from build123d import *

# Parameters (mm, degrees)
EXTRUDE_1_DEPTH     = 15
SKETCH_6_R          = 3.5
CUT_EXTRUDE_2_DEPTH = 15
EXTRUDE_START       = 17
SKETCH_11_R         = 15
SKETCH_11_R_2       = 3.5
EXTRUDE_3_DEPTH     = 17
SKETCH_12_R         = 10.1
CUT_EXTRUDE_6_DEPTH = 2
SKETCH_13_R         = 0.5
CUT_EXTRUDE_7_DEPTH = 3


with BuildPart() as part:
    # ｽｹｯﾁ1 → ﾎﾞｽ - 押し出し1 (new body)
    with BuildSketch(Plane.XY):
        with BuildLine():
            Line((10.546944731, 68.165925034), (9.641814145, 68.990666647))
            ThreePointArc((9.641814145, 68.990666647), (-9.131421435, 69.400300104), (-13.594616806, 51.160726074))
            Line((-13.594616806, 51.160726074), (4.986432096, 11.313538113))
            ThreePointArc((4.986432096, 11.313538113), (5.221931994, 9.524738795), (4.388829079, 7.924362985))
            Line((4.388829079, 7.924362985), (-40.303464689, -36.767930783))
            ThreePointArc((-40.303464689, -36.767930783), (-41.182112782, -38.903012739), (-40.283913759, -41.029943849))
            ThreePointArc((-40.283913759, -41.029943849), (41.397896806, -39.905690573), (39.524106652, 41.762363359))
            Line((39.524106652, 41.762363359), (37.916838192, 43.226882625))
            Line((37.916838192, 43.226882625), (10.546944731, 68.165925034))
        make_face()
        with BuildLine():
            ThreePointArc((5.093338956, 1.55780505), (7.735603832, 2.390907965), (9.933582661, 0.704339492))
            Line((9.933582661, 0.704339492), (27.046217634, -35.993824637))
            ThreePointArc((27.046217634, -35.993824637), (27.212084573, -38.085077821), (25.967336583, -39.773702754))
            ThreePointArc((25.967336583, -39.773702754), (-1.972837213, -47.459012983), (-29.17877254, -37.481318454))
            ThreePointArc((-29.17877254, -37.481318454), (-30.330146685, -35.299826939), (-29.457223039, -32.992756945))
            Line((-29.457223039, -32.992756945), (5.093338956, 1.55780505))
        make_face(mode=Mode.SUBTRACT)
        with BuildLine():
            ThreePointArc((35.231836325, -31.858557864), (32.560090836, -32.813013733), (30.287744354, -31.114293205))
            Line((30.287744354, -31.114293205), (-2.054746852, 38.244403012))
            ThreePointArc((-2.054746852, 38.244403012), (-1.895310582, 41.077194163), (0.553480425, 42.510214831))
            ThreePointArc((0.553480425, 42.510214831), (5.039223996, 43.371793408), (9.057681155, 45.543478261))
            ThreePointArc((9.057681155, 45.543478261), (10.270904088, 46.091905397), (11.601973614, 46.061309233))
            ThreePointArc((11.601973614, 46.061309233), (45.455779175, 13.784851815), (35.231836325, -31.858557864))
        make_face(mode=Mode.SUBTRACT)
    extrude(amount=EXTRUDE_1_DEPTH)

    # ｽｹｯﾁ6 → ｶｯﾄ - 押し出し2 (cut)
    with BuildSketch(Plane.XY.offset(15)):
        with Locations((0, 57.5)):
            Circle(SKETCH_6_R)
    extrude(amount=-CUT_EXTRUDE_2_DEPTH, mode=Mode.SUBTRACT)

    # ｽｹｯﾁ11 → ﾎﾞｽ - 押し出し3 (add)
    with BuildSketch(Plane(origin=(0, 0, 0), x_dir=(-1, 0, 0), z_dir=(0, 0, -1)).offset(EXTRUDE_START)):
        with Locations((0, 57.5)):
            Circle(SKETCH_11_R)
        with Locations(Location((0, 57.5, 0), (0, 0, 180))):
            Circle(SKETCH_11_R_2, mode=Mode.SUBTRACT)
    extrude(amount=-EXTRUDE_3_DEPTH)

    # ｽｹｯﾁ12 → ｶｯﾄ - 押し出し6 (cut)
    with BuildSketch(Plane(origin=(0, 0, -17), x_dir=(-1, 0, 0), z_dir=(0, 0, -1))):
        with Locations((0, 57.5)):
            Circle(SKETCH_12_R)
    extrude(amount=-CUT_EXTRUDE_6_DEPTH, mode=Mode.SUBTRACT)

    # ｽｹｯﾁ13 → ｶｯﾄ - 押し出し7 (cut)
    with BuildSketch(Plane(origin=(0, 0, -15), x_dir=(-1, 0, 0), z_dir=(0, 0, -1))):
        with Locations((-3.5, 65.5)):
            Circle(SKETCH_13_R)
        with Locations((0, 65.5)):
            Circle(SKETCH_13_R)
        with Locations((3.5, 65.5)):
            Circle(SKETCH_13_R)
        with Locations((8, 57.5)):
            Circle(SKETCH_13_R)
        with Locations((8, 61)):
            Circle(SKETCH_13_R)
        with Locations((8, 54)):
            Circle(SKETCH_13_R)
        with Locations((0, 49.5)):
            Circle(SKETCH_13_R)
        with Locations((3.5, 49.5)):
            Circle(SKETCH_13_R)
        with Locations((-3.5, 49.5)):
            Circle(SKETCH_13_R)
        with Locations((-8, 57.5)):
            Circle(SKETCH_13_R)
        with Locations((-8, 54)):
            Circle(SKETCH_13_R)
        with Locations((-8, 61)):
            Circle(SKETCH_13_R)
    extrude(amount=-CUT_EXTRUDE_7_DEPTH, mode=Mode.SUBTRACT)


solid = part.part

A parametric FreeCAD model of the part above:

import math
import FreeCAD as App
import Part
import Sketcher
Q = App.Units.Quantity

doc = App.newDocument("Part")
body = doc.addObject("PartDesign::Body", "Body")

sketch1 = body.newObject("Sketcher::SketchObject", "Sketch")
sketch1.AttachmentSupport = (doc.getObject("XY_Plane"), [""])
sketch1.MapMode = "FlatFace"
sketch1.addGeometry(Part.LineSegment(App.Vector(10.546945, 68.165925, 0), App.Vector(9.641814, 68.990667, 0)), False)
sketch1.addGeometry(Part.ArcOfCircle(Part.Circle(App.Vector(0, 57.5, 0), App.Vector(0, 0, 1), 15), math.radians(50), math.radians(205)), False)
sketch1.addGeometry(Part.LineSegment(App.Vector(-13.594617, 51.160726, 0), App.Vector(4.986432, 11.313538, 0)), False)
sketch1.addGeometry(Part.ArcOfCircle(Part.Circle(App.Vector(2.267509, 10.045683, 0), App.Vector(0, 0, 1), 3), math.radians(-45), math.radians(25)), False)
sketch1.addGeometry(Part.LineSegment(App.Vector(4.388829, 7.924363, 0), App.Vector(-40.303465, -36.767931, 0)), False)
sketch1.addGeometry(Part.ArcOfCircle(Part.Circle(App.Vector(-38.182144, -38.889251, 0), App.Vector(0, 0, 1), 3), math.radians(135), math.radians(225.525657)), False)
sketch1.addGeometry(Part.ArcOfCircle(Part.Circle(App.Vector(0, 0, 0), App.Vector(0, 0, 1), 57.5), math.radians(-134.474343), math.radians(46.577265)), False)
sketch1.addGeometry(Part.LineSegment(App.Vector(39.524107, 41.762363, 0), App.Vector(37.916838, 43.226883, 0)), False)
sketch1.addGeometry(Part.LineSegment(App.Vector(37.916838, 43.226883, 0), App.Vector(10.546945, 68.165925, 0)), False)
sketch1.addGeometry(Part.LineSegment(App.Vector(-29.457223, -32.992757, 0), App.Vector(5.093339, 1.557805, 0)), False)
sketch1.addGeometry(Part.ArcOfCircle(Part.Circle(App.Vector(7.214659, -0.563515, 0), App.Vector(0, 0, 1), 3), math.radians(25), math.radians(135)), False)
sketch1.addGeometry(Part.LineSegment(App.Vector(9.933583, 0.704339, 0), App.Vector(27.046218, -35.993825, 0)), False)
sketch1.addGeometry(Part.ArcOfCircle(Part.Circle(App.Vector(24.327294, -37.261679, 0), App.Vector(0, 0, 1), 3), math.radians(-56.860403), math.radians(25)), False)
sketch1.addGeometry(Part.ArcOfCircle(Part.Circle(App.Vector(0, 0, 0), App.Vector(0, 0, 1), 47.5), math.radians(-127.900345), math.radians(-56.860403)), False)
sketch1.addGeometry(Part.ArcOfCircle(Part.Circle(App.Vector(-27.335903, -35.114077, 0), App.Vector(0, 0, 1), 3), math.radians(135), math.radians(232.099655)), False)
sketch1.addGeometry(Part.ArcOfCircle(Part.Circle(App.Vector(0, 0, 0), App.Vector(0, 0, 1), 47.5), math.radians(-42.121615), math.radians(75.862362)), False)
sketch1.addGeometry(Part.ArcOfCircle(Part.Circle(App.Vector(33.006668, -29.846438, 0), App.Vector(0, 0, 1), 3), math.radians(-155), math.radians(-42.121615)), False)
sketch1.addGeometry(Part.LineSegment(App.Vector(30.287744, -31.114293, 0), App.Vector(-2.054747, 38.244403, 0)), False)
sketch1.addGeometry(Part.ArcOfCircle(Part.Circle(App.Vector(0.664177, 39.512258, 0), App.Vector(0, 0, 1), 3), math.radians(92.11462), math.radians(205)), False)
sketch1.addGeometry(Part.ArcOfCircle(Part.Circle(App.Vector(0, 57.5, 0), App.Vector(0, 0, 1), 15), math.radians(-87.88538), math.radians(-52.854196)), False)
sketch1.addGeometry(Part.ArcOfCircle(Part.Circle(App.Vector(10.869217, 43.152174, 0), App.Vector(0, 0, 1), 3), math.radians(75.862362), math.radians(127.145804)), False)
sketch1.addConstraint(Sketcher.Constraint("Coincident", 0, 2, 1, 1))
sketch1.addConstraint(Sketcher.Constraint("Coincident", 1, 2, 2, 1))
sketch1.addConstraint(Sketcher.Constraint("Coincident", 2, 2, 3, 2))
sketch1.addConstraint(Sketcher.Constraint("Coincident", 3, 1, 4, 1))
sketch1.addConstraint(Sketcher.Constraint("Coincident", 4, 2, 5, 1))
sketch1.addConstraint(Sketcher.Constraint("Coincident", 5, 2, 6, 1))
sketch1.addConstraint(Sketcher.Constraint("Coincident", 6, 2, 7, 1))
sketch1.addConstraint(Sketcher.Constraint("Coincident", 7, 2, 8, 1))
sketch1.addConstraint(Sketcher.Constraint("Coincident", 8, 2, 0, 1))
sketch1.addConstraint(Sketcher.Constraint("Coincident", 9, 2, 10, 2))
sketch1.addConstraint(Sketcher.Constraint("Coincident", 10, 1, 11, 1))
sketch1.addConstraint(Sketcher.Constraint("Coincident", 11, 2, 12, 2))
sketch1.addConstraint(Sketcher.Constraint("Coincident", 12, 1, 13, 2))
sketch1.addConstraint(Sketcher.Constraint("Coincident", 13, 1, 14, 2))
sketch1.addConstraint(Sketcher.Constraint("Coincident", 14, 1, 9, 1))
sketch1.addConstraint(Sketcher.Constraint("Coincident", 15, 1, 16, 2))
sketch1.addConstraint(Sketcher.Constraint("Coincident", 16, 1, 17, 1))
sketch1.addConstraint(Sketcher.Constraint("Coincident", 17, 2, 18, 2))
sketch1.addConstraint(Sketcher.Constraint("Coincident", 18, 1, 19, 1))
sketch1.addConstraint(Sketcher.Constraint("Coincident", 19, 2, 20, 2))
sketch1.addConstraint(Sketcher.Constraint("Coincident", 20, 1, 15, 2))
sketch1.addConstraint(Sketcher.Constraint("Coincident", 6, 3, -1, 1))
sketch1.addConstraint(Sketcher.Constraint("Coincident", 13, 3, -1, 1))
sketch1.addConstraint(Sketcher.Constraint("Coincident", 15, 3, -1, 1))
sketch1.addConstraint(Sketcher.Constraint("Coincident", 19, 3, 1, 3))
sketch1.addConstraint(Sketcher.Constraint("PointOnObject", 1, 3, -2))
sketch1.addConstraint(Sketcher.Constraint("Radius", 1, Q("15 mm")))
sketch1.addConstraint(Sketcher.Constraint("Radius", 3, Q("3 mm")))
sketch1.addConstraint(Sketcher.Constraint("Radius", 5, Q("3 mm")))
sketch1.addConstraint(Sketcher.Constraint("Radius", 10, Q("3 mm")))
sketch1.addConstraint(Sketcher.Constraint("Radius", 12, Q("3 mm")))
sketch1.addConstraint(Sketcher.Constraint("Radius", 14, Q("3 mm")))
sketch1.addConstraint(Sketcher.Constraint("Radius", 16, Q("3 mm")))
sketch1.addConstraint(Sketcher.Constraint("Radius", 18, Q("3 mm")))
sketch1.addConstraint(Sketcher.Constraint("Radius", 19, Q("15 mm")))
sketch1.addConstraint(Sketcher.Constraint("Radius", 20, Q("3 mm")))
sketch1.addConstraint(Sketcher.Constraint("Radius", 6, Q("57.5 mm")))
sketch1.addConstraint(Sketcher.Constraint("Radius", 13, Q("47.5 mm")))
sketch1.addConstraint(Sketcher.Constraint("Radius", 15, Q("47.5 mm")))
sketch1.addConstraint(Sketcher.Constraint("DistanceY", -1, 1, 1, 3, Q("57.5 mm")))
sketch1.addConstraint(Sketcher.Constraint("DistanceY", 10, 3, 3, 3, Q("10.609199 mm")))
sketch1.addConstraint(Sketcher.Constraint("DistanceY", 1, 2, 8, 2, Q("17.005199 mm")))
sketch1.addConstraint(Sketcher.Constraint("DistanceX", 12, 1, 15, 1, Q("9.2645 mm")))
sketch1.addConstraint(Sketcher.Constraint("DistanceX", 18, 1, 19, 2, Q("8.504201 mm")))
sketch1.addConstraint(Sketcher.Constraint("Distance", 8, Q("37.027921 mm")))
sketch1.addConstraint(Sketcher.Constraint("DistanceX", -1, 1, 3, 3, Q("2.267509 mm")))
sketch1.addConstraint(Sketcher.Constraint("DistanceY", 5, 3, -1, 1, Q("38.889251 mm")))
sketch1.addConstraint(Sketcher.Constraint("DistanceX", -1, 1, 10, 3, Q("7.214659 mm")))
sketch1.addConstraint(Sketcher.Constraint("DistanceY", 12, 3, -1, 1, Q("37.261679 mm")))
sketch1.addConstraint(Sketcher.Constraint("DistanceY", 16, 3, -1, 1, Q("29.846438 mm")))
sketch1.addConstraint(Sketcher.Constraint("DistanceY", -1, 1, 2, 2, Q("11.313538 mm")))
sketch1.addConstraint(Sketcher.Constraint("DistanceX", -1, 1, 3, 1, Q("4.388829 mm")))
sketch1.addConstraint(Sketcher.Constraint("DistanceY", 4, 2, -1, 1, Q("36.767931 mm")))
sketch1.addConstraint(Sketcher.Constraint("DistanceX", -1, 1, 7, 2, Q("37.916838 mm")))
sketch1.addConstraint(Sketcher.Constraint("DistanceX", -1, 1, 9, 2, Q("5.093339 mm")))
sketch1.addConstraint(Sketcher.Constraint("DistanceY", -1, 1, 10, 1, Q("0.704339 mm")))
sketch1.addConstraint(Sketcher.Constraint("DistanceY", 13, 1, -1, 1, Q("37.481318 mm")))
sketch1.addConstraint(Sketcher.Constraint("DistanceX", -1, 1, 18, 1, Q("0.55348 mm")))
sketch1.addConstraint(Sketcher.Constraint("DistanceY", -1, 1, 20, 1, Q("46.061309 mm")))
sketch1.addConstraint(Sketcher.Constraint("DistanceX", 5, 3, 14, 3, Q("10.846242 mm")))
sketch1.addConstraint(Sketcher.Constraint("DistanceY", 14, 3, 10, 3, Q("34.550562 mm")))
sketch1.addConstraint(Sketcher.Constraint("DistanceX", 18, 3, 20, 3, Q("10.205041 mm")))
sketch1.addConstraint(Sketcher.Constraint("DistanceY", 18, 3, 0, 2, Q("29.478409 mm")))
sketch1.addConstraint(Sketcher.Constraint("DistanceY", 18, 3, 1, 2, Q("11.648468 mm")))
sketch1.addConstraint(Sketcher.Constraint("DistanceX", 5, 2, 5, 3, Q("2.101769 mm")))
sketch1.addConstraint(Sketcher.Constraint("DistanceX", 20, 3, 6, 2, Q("28.654889 mm")))
sketch1.addConstraint(Sketcher.Constraint("DistanceY", 6, 2, 7, 2, Q("1.464519 mm")))
sketch1.addConstraint(Sketcher.Constraint("DistanceX", 11, 2, 16, 3, Q("5.96045 mm")))
sketch1.addConstraint(Sketcher.Constraint("DistanceX", 12, 1, 11, 2, Q("1.078881 mm")))
sketch1.addConstraint(Sketcher.Constraint("DistanceX", 14, 1, 14, 3, Q("2.12132 mm")))
sketch1.addConstraint(Sketcher.Constraint("DistanceX", 16, 1, 15, 1, Q("4.944092 mm")))
sketch1.addConstraint(Sketcher.Constraint("DistanceY", 17, 2, 20, 3, Q("4.907771 mm")))
pad1 = body.newObject("PartDesign::Pad", "Pad")
pad1.Profile = sketch1
pad1.Length = 15

sketch2 = body.newObject("Sketcher::SketchObject", "Sketch001")
sketch2.AttachmentSupport = (doc.getObject("XY_Plane"), [""])
sketch2.MapMode = "FlatFace"
sketch2.AttachmentOffset = App.Placement(App.Vector(0, 0, 15), App.Rotation())
sketch2.addGeometry(Part.Circle(App.Vector(0, 57.5, 0), App.Vector(0, 0, 1), 3.5), False)
sketch2.addConstraint(Sketcher.Constraint("PointOnObject", 0, 3, -2))
sketch2.addConstraint(Sketcher.Constraint("Diameter", 0, Q("7 mm")))
sketch2.addConstraint(Sketcher.Constraint("DistanceY", -1, 1, 0, 3, Q("57.5 mm")))
pocket1 = body.newObject("PartDesign::Pocket", "Pocket")
pocket1.Profile = sketch2
pocket1.Length = 15

sketch3 = body.newObject("Sketcher::SketchObject", "Sketch002")
sketch3.AttachmentSupport = (doc.getObject("XY_Plane"), [""])
sketch3.MapMode = "FlatFace"
sketch3.AttachmentOffset = App.Placement(App.Vector(0, 0, -17), App.Rotation())
sketch3.addGeometry(Part.Circle(App.Vector(0, 57.5, 0), App.Vector(0, 0, 1), 15), False)
sketch3.addGeometry(Part.Circle(App.Vector(0, 57.5, 0), App.Vector(0, 0, 1), 3.5), False)
sketch3.addConstraint(Sketcher.Constraint("Coincident", 1, 3, 0, 3))
sketch3.addConstraint(Sketcher.Constraint("PointOnObject", 0, 3, -2))
sketch3.addConstraint(Sketcher.Constraint("Diameter", 0, Q("30 mm")))
sketch3.addConstraint(Sketcher.Constraint("Diameter", 1, Q("7 mm")))
sketch3.addConstraint(Sketcher.Constraint("DistanceY", -1, 1, 0, 3, Q("57.5 mm")))
pad2 = body.newObject("PartDesign::Pad", "Pad001")
pad2.Profile = sketch3
pad2.Length = 17

sketch4 = body.newObject("Sketcher::SketchObject", "Sketch003")
sketch4.AttachmentSupport = (doc.getObject("XY_Plane"), [""])
sketch4.MapMode = "FlatFace"
sketch4.AttachmentOffset = App.Placement(App.Vector(0, 0, -17), App.Rotation())
sketch4.addGeometry(Part.Circle(App.Vector(0, 57.5, 0), App.Vector(0, 0, 1), 10.1), False)
sketch4.addConstraint(Sketcher.Constraint("PointOnObject", 0, 3, -2))
sketch4.addConstraint(Sketcher.Constraint("Diameter", 0, Q("20.2 mm")))
sketch4.addConstraint(Sketcher.Constraint("DistanceY", -1, 1, 0, 3, Q("57.5 mm")))
pocket2 = body.newObject("PartDesign::Pocket", "Pocket001")
pocket2.Profile = sketch4
pocket2.Length = 2
pocket2.Reversed = True

sketch5 = body.newObject("Sketcher::SketchObject", "Sketch004")
sketch5.AttachmentSupport = (doc.getObject("XY_Plane"), [""])
sketch5.MapMode = "FlatFace"
sketch5.AttachmentOffset = App.Placement(App.Vector(0, 0, -15), App.Rotation())
sketch5.addGeometry(Part.Circle(App.Vector(3.5, 65.5, 0), App.Vector(0, 0, 1), 0.5), False)
sketch5.addGeometry(Part.Circle(App.Vector(0, 65.5, 0), App.Vector(0, 0, 1), 0.5), False)
sketch5.addGeometry(Part.Circle(App.Vector(-3.5, 65.5, 0), App.Vector(0, 0, 1), 0.5), False)
sketch5.addGeometry(Part.Circle(App.Vector(-8, 57.5, 0), App.Vector(0, 0, 1), 0.5), False)
sketch5.addGeometry(Part.Circle(App.Vector(-8, 61, 0), App.Vector(0, 0, 1), 0.5), False)
sketch5.addGeometry(Part.Circle(App.Vector(-8, 54, 0), App.Vector(0, 0, 1), 0.5), False)
sketch5.addGeometry(Part.Circle(App.Vector(0, 49.5, 0), App.Vector(0, 0, 1), 0.5), False)
sketch5.addGeometry(Part.Circle(App.Vector(-3.5, 49.5, 0), App.Vector(0, 0, 1), 0.5), False)
sketch5.addGeometry(Part.Circle(App.Vector(3.5, 49.5, 0), App.Vector(0, 0, 1), 0.5), False)
sketch5.addGeometry(Part.Circle(App.Vector(8, 57.5, 0), App.Vector(0, 0, 1), 0.5), False)
sketch5.addGeometry(Part.Circle(App.Vector(8, 54, 0), App.Vector(0, 0, 1), 0.5), False)
sketch5.addGeometry(Part.Circle(App.Vector(8, 61, 0), App.Vector(0, 0, 1), 0.5), False)
sketch5.addConstraint(Sketcher.Constraint("Equal", 0, 1))
sketch5.addConstraint(Sketcher.Constraint("Equal", 1, 2))
sketch5.addConstraint(Sketcher.Constraint("Equal", 2, 3))
sketch5.addConstraint(Sketcher.Constraint("Equal", 3, 4))
sketch5.addConstraint(Sketcher.Constraint("Equal", 4, 5))
sketch5.addConstraint(Sketcher.Constraint("Equal", 5, 6))
sketch5.addConstraint(Sketcher.Constraint("Equal", 6, 7))
sketch5.addConstraint(Sketcher.Constraint("Equal", 7, 8))
sketch5.addConstraint(Sketcher.Constraint("Equal", 8, 9))
sketch5.addConstraint(Sketcher.Constraint("Equal", 9, 10))
sketch5.addConstraint(Sketcher.Constraint("Equal", 10, 11))
sketch5.addConstraint(Sketcher.Constraint("Symmetric", 0, 3, 2, 3, -2))
sketch5.addConstraint(Sketcher.Constraint("Symmetric", 7, 3, 8, 3, -2))
sketch5.addConstraint(Sketcher.Constraint("Symmetric", 3, 3, 9, 3, -2))
sketch5.addConstraint(Sketcher.Constraint("Symmetric", 5, 3, 10, 3, -2))
sketch5.addConstraint(Sketcher.Constraint("Symmetric", 4, 3, 11, 3, -2))
sketch5.addConstraint(Sketcher.Constraint("PointOnObject", 1, 3, -2))
sketch5.addConstraint(Sketcher.Constraint("PointOnObject", 6, 3, -2))
sketch5.addConstraint(Sketcher.Constraint("Horizontal", 0, 3, 1, 3))
sketch5.addConstraint(Sketcher.Constraint("Horizontal", 6, 3, 7, 3))
sketch5.addConstraint(Sketcher.Constraint("Vertical", 3, 3, 4, 3))
sketch5.addConstraint(Sketcher.Constraint("Vertical", 4, 3, 5, 3))
sketch5.addConstraint(Sketcher.Constraint("Vertical", 2, 3, 7, 3))
sketch5.addConstraint(Sketcher.Constraint("Diameter", 0, Q("1 mm")))
sketch5.addConstraint(Sketcher.Constraint("DistanceX", 3, 3, -1, 1, Q("8 mm")))
sketch5.addConstraint(Sketcher.Constraint("DistanceY", -1, 1, 4, 3, Q("61 mm")))
sketch5.addConstraint(Sketcher.Constraint("DistanceY", -1, 1, 5, 3, Q("54 mm")))
sketch5.addConstraint(Sketcher.Constraint("DistanceX", 2, 3, 0, 3, Q("7 mm")))
sketch5.addConstraint(Sketcher.Constraint("DistanceY", 3, 3, 2, 3, Q("8 mm")))
sketch5.addConstraint(Sketcher.Constraint("DistanceY", 6, 3, 3, 3, Q("8 mm")))
sketch5.addConstraint(Sketcher.Constraint("DistanceY", -1, 1, 0, 3, Q("65.5 mm")))
pocket3 = body.newObject("PartDesign::Pocket", "Pocket002")
pocket3.Profile = sketch5
pocket3.Length = 3
pocket3.Reversed = True

doc.recompute()
